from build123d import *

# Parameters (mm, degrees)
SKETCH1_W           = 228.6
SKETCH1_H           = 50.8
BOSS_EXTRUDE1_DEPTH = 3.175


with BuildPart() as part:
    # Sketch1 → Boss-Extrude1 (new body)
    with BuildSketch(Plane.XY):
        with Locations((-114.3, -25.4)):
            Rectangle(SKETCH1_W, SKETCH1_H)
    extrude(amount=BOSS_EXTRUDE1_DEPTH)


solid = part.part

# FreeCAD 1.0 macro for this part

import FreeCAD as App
import Part
import Sketcher
from FreeCAD import Vector
Q = App.Units.Quantity


def add_polygon(sketch, points):
    """Adds a closed chain of lines whose ends are joined by coincident constraints."""
    first, n = sketch.GeometryCount, len(points)
    for a, b in zip(points, points[1:] + points[:1]):
        sketch.addGeometry(Part.LineSegment(App.Vector(*a, 0), App.Vector(*b, 0)), False)
    for i in range(n):
        sketch.addConstraint(Sketcher.Constraint("Coincident", first + i, 2, first + (i + 1) % n, 1))

doc = App.newDocument("Part")
body = doc.addObject("PartDesign::Body", "Body")

sketch1 = body.newObject("Sketcher::SketchObject", "Sketch")
sketch1.AttachmentSupport = (doc.getObject("XY_Plane"), [""])
sketch1.MapMode = "FlatFace"
add_polygon(sketch1, [(-229, 0), (-229, -51), (0, -51), (0, 0)])
sketch1.addConstraint([
    Sketcher.Constraint("Vertical", 0),
    Sketcher.Constraint("Horizontal", 1),
    Sketcher.Constraint("Vertical", 2),
    Sketcher.Constraint("Horizontal", 3),
    Sketcher.Constraint("Coincident", 2, 2, -1, 1),
    Sketcher.Constraint("DistanceX", 1, 1, 1, 2, Q("9 in")),
    Sketcher.Constraint("DistanceY", 0, 2, 0, 1, Q("2 in")),
])
pad1 = body.newObject("PartDesign::Pad", "Pad")
pad1.Profile = sketch1
pad1.Length = Q("0.125 in")

doc.recompute()
